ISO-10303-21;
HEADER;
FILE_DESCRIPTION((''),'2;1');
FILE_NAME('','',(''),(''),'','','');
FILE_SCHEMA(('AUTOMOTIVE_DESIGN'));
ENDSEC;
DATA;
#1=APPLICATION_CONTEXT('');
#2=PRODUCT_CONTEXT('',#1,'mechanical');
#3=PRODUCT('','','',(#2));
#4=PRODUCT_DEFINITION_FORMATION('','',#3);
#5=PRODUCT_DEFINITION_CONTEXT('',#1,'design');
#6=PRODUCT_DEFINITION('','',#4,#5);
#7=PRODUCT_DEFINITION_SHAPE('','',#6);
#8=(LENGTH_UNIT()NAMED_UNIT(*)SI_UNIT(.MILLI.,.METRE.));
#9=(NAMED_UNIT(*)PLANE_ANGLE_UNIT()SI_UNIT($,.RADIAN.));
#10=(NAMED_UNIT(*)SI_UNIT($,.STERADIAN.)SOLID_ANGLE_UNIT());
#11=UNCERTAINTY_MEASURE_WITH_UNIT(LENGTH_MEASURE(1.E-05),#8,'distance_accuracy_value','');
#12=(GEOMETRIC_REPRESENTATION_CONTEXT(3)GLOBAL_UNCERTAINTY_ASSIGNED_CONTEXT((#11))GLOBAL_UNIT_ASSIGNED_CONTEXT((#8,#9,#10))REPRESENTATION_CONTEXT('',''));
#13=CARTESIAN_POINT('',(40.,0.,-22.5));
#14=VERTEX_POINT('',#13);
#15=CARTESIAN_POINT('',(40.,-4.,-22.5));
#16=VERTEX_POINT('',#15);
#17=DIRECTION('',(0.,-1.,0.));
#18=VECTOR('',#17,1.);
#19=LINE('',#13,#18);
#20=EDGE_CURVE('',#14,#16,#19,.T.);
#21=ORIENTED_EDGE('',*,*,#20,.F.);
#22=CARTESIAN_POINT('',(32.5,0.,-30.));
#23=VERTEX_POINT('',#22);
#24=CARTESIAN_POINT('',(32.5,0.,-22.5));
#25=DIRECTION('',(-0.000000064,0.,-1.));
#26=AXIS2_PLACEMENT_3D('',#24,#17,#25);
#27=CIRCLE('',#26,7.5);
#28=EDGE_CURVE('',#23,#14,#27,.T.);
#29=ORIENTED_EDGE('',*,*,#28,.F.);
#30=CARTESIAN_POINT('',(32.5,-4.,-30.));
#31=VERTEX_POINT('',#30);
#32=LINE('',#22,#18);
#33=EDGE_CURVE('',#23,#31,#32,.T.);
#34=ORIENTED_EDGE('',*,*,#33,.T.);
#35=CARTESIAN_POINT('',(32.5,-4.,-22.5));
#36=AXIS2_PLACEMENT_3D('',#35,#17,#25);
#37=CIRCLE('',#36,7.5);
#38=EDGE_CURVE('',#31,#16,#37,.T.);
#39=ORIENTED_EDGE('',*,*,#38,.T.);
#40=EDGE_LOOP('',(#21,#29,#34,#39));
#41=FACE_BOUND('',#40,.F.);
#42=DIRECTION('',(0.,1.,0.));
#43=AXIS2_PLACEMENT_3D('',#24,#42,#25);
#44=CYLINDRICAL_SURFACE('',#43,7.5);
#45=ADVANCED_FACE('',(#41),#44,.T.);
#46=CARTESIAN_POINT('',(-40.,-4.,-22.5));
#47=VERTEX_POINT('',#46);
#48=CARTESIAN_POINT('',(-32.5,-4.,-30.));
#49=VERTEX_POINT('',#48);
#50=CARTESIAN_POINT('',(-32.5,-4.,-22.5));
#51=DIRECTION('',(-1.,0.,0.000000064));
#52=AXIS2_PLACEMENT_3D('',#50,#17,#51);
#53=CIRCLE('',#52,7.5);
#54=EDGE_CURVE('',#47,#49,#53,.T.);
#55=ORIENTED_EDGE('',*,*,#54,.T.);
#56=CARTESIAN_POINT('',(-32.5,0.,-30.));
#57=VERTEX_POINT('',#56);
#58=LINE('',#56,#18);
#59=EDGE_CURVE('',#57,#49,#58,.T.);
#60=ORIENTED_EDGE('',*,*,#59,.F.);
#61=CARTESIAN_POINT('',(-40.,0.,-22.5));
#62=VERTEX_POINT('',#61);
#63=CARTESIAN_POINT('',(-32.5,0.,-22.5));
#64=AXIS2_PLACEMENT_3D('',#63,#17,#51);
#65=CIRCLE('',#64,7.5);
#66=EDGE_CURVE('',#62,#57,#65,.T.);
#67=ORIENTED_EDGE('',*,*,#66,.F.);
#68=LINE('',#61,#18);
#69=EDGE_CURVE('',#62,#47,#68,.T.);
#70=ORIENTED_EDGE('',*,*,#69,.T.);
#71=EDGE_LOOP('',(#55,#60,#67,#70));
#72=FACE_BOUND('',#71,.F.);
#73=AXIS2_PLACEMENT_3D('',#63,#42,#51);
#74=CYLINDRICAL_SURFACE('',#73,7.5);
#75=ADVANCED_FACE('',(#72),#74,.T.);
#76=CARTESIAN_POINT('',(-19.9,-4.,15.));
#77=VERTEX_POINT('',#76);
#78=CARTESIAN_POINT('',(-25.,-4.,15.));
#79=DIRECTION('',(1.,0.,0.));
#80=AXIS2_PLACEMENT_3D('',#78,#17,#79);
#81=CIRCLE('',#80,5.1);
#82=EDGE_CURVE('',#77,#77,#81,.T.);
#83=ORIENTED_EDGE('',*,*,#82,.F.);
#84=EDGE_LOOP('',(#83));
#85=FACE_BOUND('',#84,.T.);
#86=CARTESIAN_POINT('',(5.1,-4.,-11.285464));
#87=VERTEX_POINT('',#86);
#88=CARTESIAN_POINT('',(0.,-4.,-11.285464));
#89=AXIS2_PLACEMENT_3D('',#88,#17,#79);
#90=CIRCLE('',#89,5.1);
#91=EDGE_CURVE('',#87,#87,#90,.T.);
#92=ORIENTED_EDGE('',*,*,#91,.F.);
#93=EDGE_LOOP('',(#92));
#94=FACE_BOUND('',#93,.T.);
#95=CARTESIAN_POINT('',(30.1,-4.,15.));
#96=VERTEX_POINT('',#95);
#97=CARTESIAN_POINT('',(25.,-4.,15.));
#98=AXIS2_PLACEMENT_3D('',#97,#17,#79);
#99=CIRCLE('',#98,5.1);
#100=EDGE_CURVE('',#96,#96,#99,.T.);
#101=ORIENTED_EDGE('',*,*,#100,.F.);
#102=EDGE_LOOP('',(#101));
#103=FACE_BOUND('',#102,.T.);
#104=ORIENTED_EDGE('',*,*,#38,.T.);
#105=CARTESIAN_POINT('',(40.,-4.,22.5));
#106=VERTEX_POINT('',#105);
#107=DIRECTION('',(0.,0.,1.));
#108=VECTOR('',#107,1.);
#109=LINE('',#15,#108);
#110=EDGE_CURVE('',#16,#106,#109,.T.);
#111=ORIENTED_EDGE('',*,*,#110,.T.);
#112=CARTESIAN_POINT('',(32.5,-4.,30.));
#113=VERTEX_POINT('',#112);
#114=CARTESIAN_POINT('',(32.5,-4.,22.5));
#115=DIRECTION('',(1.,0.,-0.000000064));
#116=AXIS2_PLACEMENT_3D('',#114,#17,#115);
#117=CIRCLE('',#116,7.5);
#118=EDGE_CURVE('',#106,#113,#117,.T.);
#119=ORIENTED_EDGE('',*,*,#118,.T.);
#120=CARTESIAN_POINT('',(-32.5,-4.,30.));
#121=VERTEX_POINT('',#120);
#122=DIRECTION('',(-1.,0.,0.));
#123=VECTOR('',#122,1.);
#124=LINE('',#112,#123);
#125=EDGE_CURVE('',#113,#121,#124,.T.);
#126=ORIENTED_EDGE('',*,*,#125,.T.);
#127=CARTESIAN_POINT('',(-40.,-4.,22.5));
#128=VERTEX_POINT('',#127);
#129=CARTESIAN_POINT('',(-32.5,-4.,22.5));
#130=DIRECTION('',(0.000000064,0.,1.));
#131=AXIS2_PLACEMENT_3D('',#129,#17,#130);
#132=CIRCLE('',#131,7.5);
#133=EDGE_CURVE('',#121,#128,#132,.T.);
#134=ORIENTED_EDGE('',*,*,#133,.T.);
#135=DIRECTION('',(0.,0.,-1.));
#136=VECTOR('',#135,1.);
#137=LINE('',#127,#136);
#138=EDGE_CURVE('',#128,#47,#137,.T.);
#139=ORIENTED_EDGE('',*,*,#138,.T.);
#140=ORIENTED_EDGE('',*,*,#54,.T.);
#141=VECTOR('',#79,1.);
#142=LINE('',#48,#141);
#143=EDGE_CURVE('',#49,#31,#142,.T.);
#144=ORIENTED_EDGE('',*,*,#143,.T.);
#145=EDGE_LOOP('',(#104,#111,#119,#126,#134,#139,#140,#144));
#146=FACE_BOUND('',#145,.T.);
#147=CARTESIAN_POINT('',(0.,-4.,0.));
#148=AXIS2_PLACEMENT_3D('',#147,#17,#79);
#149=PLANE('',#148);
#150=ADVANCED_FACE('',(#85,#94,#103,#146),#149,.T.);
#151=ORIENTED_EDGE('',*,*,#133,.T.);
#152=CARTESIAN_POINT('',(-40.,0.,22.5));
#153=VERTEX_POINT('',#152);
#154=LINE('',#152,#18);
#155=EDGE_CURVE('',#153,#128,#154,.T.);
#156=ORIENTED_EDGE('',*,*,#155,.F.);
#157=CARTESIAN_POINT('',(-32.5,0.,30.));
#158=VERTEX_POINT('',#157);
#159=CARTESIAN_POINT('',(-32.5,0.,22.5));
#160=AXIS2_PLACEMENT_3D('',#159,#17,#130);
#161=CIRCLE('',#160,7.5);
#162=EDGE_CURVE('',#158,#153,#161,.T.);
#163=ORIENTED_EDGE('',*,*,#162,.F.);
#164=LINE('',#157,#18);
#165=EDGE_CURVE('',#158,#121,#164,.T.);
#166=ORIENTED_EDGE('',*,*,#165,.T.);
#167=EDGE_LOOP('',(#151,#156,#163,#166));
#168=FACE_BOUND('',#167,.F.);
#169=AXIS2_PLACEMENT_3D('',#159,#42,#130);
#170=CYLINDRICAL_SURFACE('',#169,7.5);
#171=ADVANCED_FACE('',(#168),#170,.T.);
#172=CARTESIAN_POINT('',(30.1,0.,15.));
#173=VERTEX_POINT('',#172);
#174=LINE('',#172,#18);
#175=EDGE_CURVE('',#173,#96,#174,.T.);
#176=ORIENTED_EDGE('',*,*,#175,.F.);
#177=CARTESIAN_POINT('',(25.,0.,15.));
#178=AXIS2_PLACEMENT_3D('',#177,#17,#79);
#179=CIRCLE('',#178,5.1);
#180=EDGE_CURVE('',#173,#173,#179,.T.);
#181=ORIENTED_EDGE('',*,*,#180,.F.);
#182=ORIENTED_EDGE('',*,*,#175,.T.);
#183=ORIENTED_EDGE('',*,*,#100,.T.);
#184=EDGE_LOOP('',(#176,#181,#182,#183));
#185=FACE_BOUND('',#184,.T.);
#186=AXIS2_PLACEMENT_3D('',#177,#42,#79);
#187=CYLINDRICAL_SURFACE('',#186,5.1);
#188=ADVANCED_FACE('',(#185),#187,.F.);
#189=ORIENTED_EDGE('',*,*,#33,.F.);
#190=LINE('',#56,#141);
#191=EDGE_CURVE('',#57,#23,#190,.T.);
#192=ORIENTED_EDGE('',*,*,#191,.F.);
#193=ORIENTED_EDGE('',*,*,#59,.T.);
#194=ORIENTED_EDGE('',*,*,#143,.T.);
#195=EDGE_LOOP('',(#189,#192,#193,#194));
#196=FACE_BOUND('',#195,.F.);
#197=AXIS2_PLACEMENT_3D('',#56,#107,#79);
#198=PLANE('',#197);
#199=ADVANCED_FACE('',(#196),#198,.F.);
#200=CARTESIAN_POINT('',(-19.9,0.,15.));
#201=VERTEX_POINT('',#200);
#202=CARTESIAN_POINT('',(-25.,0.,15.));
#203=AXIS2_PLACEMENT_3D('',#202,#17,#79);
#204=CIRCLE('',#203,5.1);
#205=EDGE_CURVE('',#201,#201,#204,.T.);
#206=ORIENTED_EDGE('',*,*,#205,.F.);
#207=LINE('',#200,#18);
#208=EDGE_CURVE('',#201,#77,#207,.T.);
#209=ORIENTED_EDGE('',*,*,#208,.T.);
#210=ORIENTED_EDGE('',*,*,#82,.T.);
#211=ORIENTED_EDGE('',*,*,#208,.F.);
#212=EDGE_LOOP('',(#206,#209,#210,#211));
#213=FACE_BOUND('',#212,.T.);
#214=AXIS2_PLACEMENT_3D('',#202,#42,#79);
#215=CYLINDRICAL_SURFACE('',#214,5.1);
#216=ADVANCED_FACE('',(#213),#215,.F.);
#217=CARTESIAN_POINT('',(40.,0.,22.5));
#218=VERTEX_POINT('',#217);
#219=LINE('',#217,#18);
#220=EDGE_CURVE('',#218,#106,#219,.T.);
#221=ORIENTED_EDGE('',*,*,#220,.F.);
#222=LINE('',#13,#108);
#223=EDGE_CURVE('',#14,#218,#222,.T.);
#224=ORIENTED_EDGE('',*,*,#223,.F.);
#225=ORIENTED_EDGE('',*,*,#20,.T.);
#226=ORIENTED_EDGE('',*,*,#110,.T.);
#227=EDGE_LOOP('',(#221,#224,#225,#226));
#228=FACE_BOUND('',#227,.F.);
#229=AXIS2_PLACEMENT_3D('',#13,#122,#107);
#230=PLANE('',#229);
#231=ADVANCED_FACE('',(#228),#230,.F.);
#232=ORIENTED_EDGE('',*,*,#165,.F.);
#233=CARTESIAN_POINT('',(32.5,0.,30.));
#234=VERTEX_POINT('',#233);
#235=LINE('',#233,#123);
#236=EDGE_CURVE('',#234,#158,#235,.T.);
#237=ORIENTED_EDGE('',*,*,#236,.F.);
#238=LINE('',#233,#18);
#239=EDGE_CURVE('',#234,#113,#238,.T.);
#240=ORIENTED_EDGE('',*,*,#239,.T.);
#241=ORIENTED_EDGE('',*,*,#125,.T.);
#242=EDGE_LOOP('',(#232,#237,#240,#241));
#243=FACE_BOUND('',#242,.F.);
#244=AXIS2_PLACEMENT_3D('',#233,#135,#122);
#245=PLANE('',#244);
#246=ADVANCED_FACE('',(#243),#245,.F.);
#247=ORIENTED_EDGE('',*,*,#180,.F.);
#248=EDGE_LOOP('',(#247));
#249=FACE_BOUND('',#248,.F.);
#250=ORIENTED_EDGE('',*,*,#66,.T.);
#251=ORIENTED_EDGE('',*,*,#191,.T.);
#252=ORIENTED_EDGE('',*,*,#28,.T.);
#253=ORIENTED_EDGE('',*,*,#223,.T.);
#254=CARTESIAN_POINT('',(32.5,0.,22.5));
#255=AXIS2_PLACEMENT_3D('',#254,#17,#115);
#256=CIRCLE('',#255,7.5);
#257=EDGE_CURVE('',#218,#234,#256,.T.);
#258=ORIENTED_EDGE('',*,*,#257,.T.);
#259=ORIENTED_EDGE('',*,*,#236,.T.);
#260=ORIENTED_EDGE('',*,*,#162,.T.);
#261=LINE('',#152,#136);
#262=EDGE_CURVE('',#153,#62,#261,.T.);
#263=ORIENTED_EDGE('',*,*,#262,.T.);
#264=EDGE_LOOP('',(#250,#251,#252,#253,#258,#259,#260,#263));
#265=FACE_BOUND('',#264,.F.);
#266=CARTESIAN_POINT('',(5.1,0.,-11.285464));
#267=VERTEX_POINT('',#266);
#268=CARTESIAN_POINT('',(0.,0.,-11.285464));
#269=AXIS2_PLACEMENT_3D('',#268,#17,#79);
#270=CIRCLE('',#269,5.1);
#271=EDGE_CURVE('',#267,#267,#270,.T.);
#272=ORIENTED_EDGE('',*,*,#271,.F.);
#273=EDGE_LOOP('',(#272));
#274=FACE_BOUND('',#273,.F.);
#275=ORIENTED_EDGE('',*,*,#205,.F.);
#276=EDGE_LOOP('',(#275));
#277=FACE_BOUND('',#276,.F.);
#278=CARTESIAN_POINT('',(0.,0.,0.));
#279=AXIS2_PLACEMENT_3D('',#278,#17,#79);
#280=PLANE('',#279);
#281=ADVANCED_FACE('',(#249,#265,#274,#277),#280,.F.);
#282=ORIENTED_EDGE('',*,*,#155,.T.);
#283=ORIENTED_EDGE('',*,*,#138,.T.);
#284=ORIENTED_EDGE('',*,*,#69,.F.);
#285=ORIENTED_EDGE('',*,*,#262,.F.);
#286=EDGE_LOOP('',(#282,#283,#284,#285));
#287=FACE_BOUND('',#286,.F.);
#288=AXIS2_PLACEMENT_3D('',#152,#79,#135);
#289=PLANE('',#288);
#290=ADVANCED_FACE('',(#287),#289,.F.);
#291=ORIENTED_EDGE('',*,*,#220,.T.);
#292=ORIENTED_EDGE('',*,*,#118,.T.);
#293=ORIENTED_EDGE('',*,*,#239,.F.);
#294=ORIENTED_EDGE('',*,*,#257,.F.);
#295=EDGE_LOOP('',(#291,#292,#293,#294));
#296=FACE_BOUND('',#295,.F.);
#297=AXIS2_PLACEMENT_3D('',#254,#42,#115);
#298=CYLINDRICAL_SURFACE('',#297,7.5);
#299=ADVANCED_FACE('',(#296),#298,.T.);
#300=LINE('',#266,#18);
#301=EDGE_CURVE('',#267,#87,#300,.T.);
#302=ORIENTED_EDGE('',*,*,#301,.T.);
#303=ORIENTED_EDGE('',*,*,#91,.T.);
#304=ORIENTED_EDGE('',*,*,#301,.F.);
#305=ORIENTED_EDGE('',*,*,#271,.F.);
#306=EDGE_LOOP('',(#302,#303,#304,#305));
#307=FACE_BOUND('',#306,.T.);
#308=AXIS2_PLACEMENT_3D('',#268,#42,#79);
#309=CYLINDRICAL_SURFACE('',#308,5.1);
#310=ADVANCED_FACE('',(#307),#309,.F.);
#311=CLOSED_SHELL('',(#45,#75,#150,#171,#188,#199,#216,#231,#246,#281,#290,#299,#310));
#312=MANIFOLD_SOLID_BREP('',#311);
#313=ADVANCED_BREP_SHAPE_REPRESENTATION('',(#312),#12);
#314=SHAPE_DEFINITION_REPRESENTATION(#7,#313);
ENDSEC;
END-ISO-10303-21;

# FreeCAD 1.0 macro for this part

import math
import FreeCAD as App
import Part
import Sketcher
from FreeCAD import Vector
Q = App.Units.Quantity

doc = App.newDocument("Part")
body = doc.addObject("PartDesign::Body", "Body")

# Sketch on XZ plane
sketch1 = body.newObject("Sketcher::SketchObject", "Sketch")
sketch1.AttachmentSupport = (doc.getObject("XZ_Plane"), [""])
sketch1.MapMode = "FlatFace"
sketch1.addGeometry([
    Part.ArcOfCircle(Part.Circle(Vector(33, 23, 0), Vector(0, 0, 1), 7), math.radians(0), math.radians(90)),  # 0
    Part.LineSegment(Vector(32, 30, 0), Vector(-32, 30, 0)),  # 1
    Part.ArcOfCircle(Part.Circle(Vector(-33, 23, 0), Vector(0, 0, 1), 7), math.radians(90), math.radians(180)),  # 2
    Part.LineSegment(Vector(-40, 22, 0), Vector(-40, -22, 0)),  # 3
    Part.ArcOfCircle(Part.Circle(Vector(-33, -23, 0), Vector(0, 0, 1), 7), math.radians(180), math.radians(270)),  # 4
    Part.LineSegment(Vector(-32, -30, 0), Vector(32, -30, 0)),  # 5
    Part.ArcOfCircle(Part.Circle(Vector(33, -23, 0), Vector(0, 0, 1), 7), math.radians(-90), math.radians(0)),  # 6
    Part.LineSegment(Vector(40, -22, 0), Vector(40, 22, 0)),  # 7
    Part.Circle(Vector(0, -11, 0), Vector(0, 0, 1), 5),  # 8
    Part.Circle(Vector(-25, 15, 0), Vector(0, 0, 1), 5),  # 9
    Part.Circle(Vector(25, 15, 0), Vector(0, 0, 1), 5),  # 10
], False)
sketch1.addConstraint([
    Sketcher.Constraint("Tangent", 0, 2, 1, 1),
    Sketcher.Constraint("Tangent", 1, 2, 2, 1),
    Sketcher.Constraint("Tangent", 2, 2, 3, 1),
    Sketcher.Constraint("Tangent", 3, 2, 4, 1),
    Sketcher.Constraint("Tangent", 4, 2, 5, 1),
    Sketcher.Constraint("Tangent", 5, 2, 6, 1),
    Sketcher.Constraint("Tangent", 6, 2, 7, 1),
    Sketcher.Constraint("Tangent", 7, 2, 0, 1),
    Sketcher.Constraint("Horizontal", 1),
    Sketcher.Constraint("Vertical", 3),
    Sketcher.Constraint("Horizontal", 5),
    Sketcher.Constraint("Vertical", 7),
    Sketcher.Constraint("Equal", 0, 2),
    Sketcher.Constraint("Equal", 2, 4),
    Sketcher.Constraint("Equal", 4, 6),
    Sketcher.Constraint("Equal", 8, 9),
    Sketcher.Constraint("Equal", 9, 10),
    Sketcher.Constraint("Symmetric", 0, 3, 4, 3, -1, 1),
    Sketcher.Constraint("Symmetric", 9, 3, 10, 3, -2),
    Sketcher.Constraint("PointOnObject", 8, 3, -2),
    Sketcher.Constraint("Diameter", 8, Q("10.2 mm")),
    Sketcher.Constraint("Radius", 0, Q("7.5 mm")),
    Sketcher.Constraint("DistanceX", 1, 2, 1, 1, Q("65 mm")),
    Sketcher.Constraint("DistanceY", 3, 2, 3, 1, Q("45 mm")),
    Sketcher.Constraint("DistanceX", 9, 3, -1, 1, Q("25 mm")),
    Sketcher.Constraint("DistanceY", -1, 1, 9, 3, Q("15 mm")),
    Sketcher.Constraint("DistanceY", 8, 3, -1, 1, Q("11.285464 mm")),
])
pad1 = body.newObject("PartDesign::Pad", "Pad")
pad1.Profile = sketch1
pad1.Length = 4

doc.recompute()
